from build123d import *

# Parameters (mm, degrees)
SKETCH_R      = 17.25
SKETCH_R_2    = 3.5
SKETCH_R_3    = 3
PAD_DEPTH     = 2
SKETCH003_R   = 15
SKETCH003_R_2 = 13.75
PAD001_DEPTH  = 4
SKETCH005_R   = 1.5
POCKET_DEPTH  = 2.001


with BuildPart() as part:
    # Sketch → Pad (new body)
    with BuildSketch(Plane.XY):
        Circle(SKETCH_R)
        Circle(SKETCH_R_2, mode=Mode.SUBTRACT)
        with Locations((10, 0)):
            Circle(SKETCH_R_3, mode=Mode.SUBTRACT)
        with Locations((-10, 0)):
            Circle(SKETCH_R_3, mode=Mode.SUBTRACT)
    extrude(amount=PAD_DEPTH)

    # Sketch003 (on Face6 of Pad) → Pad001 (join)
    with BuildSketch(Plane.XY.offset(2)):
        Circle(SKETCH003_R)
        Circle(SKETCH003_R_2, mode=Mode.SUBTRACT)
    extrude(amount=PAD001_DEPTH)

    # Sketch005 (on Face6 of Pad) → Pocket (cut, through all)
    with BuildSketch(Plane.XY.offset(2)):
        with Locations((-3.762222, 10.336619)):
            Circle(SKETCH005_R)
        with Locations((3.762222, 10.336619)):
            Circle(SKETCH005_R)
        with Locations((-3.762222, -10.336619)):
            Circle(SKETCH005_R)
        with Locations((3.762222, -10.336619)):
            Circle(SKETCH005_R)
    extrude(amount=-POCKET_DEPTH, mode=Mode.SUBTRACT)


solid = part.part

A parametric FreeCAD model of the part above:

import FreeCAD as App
import Part
import Sketcher

doc = App.newDocument("Part")
params = doc.addObject("Spreadsheet::Sheet", "Params")
for row, (alias, value) in enumerate([
    ("sketch1_diameter", "6 mm"),
    ("sketch1_diameter2", "7 mm"),
    ("sketch1_diameter3", "34.5 mm"),
    ("pad1_length", "2 mm"),
    ("sketch2_diameter", "30 mm"),
    ("sketch2_diameter2", "27.5 mm"),
    ("pad2_length", "4 mm"),
    ("sketch3_diameter", "3 mm"),
], start=1):
    params.set(f"A{row}", alias)
    params.set(f"B{row}", "=" + value)
    params.setAlias(f"B{row}", alias)

body = doc.addObject("PartDesign::Body", "Body")

# Sketch on XY plane
sketch1 = body.newObject("Sketcher::SketchObject", "Sketch")
sketch1.AttachmentSupport = (doc.getObject("XY_Plane"), [""])
sketch1.MapMode = "FlatFace"
sketch1.addGeometry([
    Part.Circle(App.Vector(0, 0, 0), App.Vector(0, 0, 1), 17.2),
    Part.Circle(App.Vector(-10, 0, 0), App.Vector(0, 0, 1), 3),
    Part.Circle(App.Vector(0, 0, 0), App.Vector(0, 0, 1), 3.5),
    Part.Circle(App.Vector(10, 0, 0), App.Vector(0, 0, 1), 3),
], False)
sketch1.addConstraint([
    Sketcher.Constraint("Coincident", 0, 3, -1, 1),
    Sketcher.Constraint("Coincident", 2, 3, -1, 1),
    Sketcher.Constraint("Equal", 1, 3),
    Sketcher.Constraint("Symmetric", 1, 3, 3, 3, -1, 1),
    Sketcher.Constraint("PointOnObject", 1, 3, -1),
    Sketcher.Constraint("Diameter", 1, 6.0),
    Sketcher.Constraint("Diameter", 2, 7.0),
    Sketcher.Constraint("Diameter", 0, 34.5),
    Sketcher.Constraint("DistanceX", 1, 3, -1, 1, 10.0),
])
sketch1.setExpression("Constraints[5]", "Params.sketch1_diameter")
sketch1.setExpression("Constraints[6]", "Params.sketch1_diameter2")
sketch1.setExpression("Constraints[7]", "Params.sketch1_diameter3")
pad1 = body.newObject("PartDesign::Pad", "Pad")
pad1.Profile = sketch1
pad1.setExpression("Length", "Params.pad1_length")

# Sketch on XY plane
sketch2 = body.newObject("Sketcher::SketchObject", "Sketch001")
sketch2.AttachmentSupport = (doc.getObject("XY_Plane"), [""])
sketch2.MapMode = "FlatFace"
sketch2.AttachmentOffset = App.Placement(App.Vector(0, 0, 2), App.Rotation())
sketch2.addGeometry([
    Part.Circle(App.Vector(0, 0, 0), App.Vector(0, 0, 1), 15),
    Part.Circle(App.Vector(0, 0, 0), App.Vector(0, 0, 1), 14),
], False)
sketch2.addConstraint([
    Sketcher.Constraint("Coincident", 0, 3, -1, 1),
    Sketcher.Constraint("Coincident", 1, 3, -1, 1),
    Sketcher.Constraint("Diameter", 0, 30.0),
    Sketcher.Constraint("Diameter", 1, 27.5),
])
sketch2.setExpression("Constraints[2]", "Params.sketch2_diameter")
sketch2.setExpression("Constraints[3]", "Params.sketch2_diameter2")
pad2 = body.newObject("PartDesign::Pad", "Pad001")
pad2.Profile = sketch2
pad2.setExpression("Length", "Params.pad2_length")

# Sketch on XY plane
sketch3 = body.newObject("Sketcher::SketchObject", "Sketch002")
sketch3.AttachmentSupport = (doc.getObject("XY_Plane"), [""])
sketch3.MapMode = "FlatFace"
sketch3.AttachmentOffset = App.Placement(App.Vector(0, 0, 2), App.Rotation())
sketch3.addGeometry([
    Part.Circle(App.Vector(-3.8, 10.3, 0), App.Vector(0, 0, 1), 1.5),
    Part.Circle(App.Vector(3.8, 10.3, 0), App.Vector(0, 0, 1), 1.5),
    Part.Circle(App.Vector(-3.8, -10.3, 0), App.Vector(0, 0, 1), 1.5),
    Part.Circle(App.Vector(3.8, -10.3, 0), App.Vector(0, 0, 1), 1.5),
], False)
sketch3.addConstraint([
    Sketcher.Constraint("Equal", 0, 1),
    Sketcher.Constraint("Equal", 1, 2),
    Sketcher.Constraint("Equal", 2, 3),
    Sketcher.Constraint("Symmetric", 1, 3, 2, 3, -1, 1),
    Sketcher.Constraint("Symmetric", 0, 3, 3, 3, -1, 1),
    Sketcher.Constraint("Symmetric", 0, 3, 1, 3, -2),
    Sketcher.Constraint("Diameter", 0, 3.0),
    Sketcher.Constraint("DistanceX", 0, 3, -1, 1, 3.762222),
    Sketcher.Constraint("DistanceY", -1, 1, 0, 3, 10.336619),
])
sketch3.setExpression("Constraints[6]", "Params.sketch3_diameter")
pocket1 = body.newObject("PartDesign::Pocket", "Pocket")
pocket1.Profile = sketch3
pocket1.Type = "ThroughAll"

doc.recompute()
